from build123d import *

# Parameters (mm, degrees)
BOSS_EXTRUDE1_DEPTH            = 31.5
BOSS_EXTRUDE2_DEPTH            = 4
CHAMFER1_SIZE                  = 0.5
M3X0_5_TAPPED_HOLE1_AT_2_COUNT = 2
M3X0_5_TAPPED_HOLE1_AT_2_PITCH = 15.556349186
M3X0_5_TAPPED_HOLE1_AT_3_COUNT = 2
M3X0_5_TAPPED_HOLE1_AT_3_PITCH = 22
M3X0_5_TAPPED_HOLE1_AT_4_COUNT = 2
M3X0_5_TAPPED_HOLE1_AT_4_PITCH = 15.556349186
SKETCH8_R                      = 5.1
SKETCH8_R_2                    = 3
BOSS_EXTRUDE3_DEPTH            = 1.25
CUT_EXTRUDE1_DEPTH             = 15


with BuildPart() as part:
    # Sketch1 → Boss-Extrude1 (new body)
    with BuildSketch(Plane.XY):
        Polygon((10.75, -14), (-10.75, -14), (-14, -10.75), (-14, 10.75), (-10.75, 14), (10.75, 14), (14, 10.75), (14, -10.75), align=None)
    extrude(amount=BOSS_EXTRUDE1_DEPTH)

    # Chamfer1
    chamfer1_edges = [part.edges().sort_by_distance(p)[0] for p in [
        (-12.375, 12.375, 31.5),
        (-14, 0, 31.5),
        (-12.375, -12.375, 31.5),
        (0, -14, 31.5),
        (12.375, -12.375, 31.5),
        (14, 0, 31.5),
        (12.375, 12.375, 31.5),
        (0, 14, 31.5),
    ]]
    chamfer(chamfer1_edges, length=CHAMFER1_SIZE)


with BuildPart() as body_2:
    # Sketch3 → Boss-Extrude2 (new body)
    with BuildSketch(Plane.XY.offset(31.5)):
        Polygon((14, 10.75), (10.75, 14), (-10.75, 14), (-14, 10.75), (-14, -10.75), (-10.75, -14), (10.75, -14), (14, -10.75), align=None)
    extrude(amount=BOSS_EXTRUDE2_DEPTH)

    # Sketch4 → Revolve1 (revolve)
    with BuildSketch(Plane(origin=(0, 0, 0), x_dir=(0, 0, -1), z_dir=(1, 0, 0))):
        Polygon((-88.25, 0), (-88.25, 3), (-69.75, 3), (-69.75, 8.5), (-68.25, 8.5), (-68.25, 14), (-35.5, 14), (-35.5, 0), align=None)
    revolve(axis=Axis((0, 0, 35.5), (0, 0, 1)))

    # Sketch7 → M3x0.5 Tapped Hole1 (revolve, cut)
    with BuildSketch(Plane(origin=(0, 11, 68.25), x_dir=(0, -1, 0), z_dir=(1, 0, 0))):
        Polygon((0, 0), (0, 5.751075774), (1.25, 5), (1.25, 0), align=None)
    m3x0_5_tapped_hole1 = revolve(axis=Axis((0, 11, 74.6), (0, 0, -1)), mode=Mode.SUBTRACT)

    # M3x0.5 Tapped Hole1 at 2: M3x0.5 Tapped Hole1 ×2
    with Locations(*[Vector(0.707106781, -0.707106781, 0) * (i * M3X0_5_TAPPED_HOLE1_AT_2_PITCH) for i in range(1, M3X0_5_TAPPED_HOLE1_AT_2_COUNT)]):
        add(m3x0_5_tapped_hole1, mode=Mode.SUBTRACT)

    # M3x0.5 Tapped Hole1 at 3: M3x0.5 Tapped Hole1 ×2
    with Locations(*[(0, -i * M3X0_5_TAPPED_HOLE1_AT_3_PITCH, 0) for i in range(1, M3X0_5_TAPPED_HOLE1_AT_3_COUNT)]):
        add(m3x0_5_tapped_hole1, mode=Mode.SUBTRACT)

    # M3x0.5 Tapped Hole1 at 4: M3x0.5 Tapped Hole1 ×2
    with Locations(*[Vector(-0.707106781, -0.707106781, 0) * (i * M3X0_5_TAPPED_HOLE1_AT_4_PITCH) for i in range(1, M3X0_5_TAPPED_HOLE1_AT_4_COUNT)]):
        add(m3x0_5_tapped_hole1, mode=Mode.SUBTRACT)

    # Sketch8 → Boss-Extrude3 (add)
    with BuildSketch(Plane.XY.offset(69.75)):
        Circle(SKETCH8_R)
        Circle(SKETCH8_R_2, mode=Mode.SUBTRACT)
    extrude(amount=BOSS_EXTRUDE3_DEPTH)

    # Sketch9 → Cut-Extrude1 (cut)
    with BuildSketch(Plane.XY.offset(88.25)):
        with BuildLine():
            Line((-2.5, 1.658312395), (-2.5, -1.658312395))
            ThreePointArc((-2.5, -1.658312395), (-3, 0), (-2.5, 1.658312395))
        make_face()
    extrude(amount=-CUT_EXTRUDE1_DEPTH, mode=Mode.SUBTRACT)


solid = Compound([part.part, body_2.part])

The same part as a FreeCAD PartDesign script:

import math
import FreeCAD as App
import Part
import Sketcher
Q = App.Units.Quantity


def edges_at(feature, points):
    """Names of the edges that pass closest to the given points."""
    edges = feature.Shape.Edges
    near = lambda p: min(range(len(edges)), key=lambda i: edges[i].distToShape(Part.Vertex(*p))[0])
    return sorted({f"Edge{near(p) + 1}" for p in points})

doc = App.newDocument("Part")
body = doc.addObject("PartDesign::Body", "Body")

sketch1 = doc.addObject("Sketcher::SketchObject", "Sketch")
body.addObject(sketch1)
sketch1.AttachmentSupport = (doc.XY_Plane, [""])
sketch1.MapMode = "FlatFace"
sketch1.addGeometry(Part.LineSegment(App.Vector(-10.8, -14, 0), App.Vector(10.8, -14, 0)), False)
sketch1.addGeometry(Part.LineSegment(App.Vector(10.8, -14, 0), App.Vector(14, -10.8, 0)), False)
sketch1.addGeometry(Part.LineSegment(App.Vector(14, -10.8, 0), App.Vector(14, 10.8, 0)), False)
sketch1.addGeometry(Part.LineSegment(App.Vector(14, 10.8, 0), App.Vector(10.8, 14, 0)), False)
sketch1.addGeometry(Part.LineSegment(App.Vector(10.8, 14, 0), App.Vector(-10.8, 14, 0)), False)
sketch1.addGeometry(Part.LineSegment(App.Vector(-10.8, 14, 0), App.Vector(-14, 10.8, 0)), False)
sketch1.addGeometry(Part.LineSegment(App.Vector(-14, 10.8, 0), App.Vector(-14, -10.8, 0)), False)
sketch1.addGeometry(Part.LineSegment(App.Vector(-14, -10.8, 0), App.Vector(-10.8, -14, 0)), False)
sketch1.addConstraint(Sketcher.Constraint("Coincident", 0, 2, 1, 1))
sketch1.addConstraint(Sketcher.Constraint("Coincident", 1, 2, 2, 1))
sketch1.addConstraint(Sketcher.Constraint("Coincident", 2, 2, 3, 1))
sketch1.addConstraint(Sketcher.Constraint("Coincident", 3, 2, 4, 1))
sketch1.addConstraint(Sketcher.Constraint("Coincident", 4, 2, 5, 1))
sketch1.addConstraint(Sketcher.Constraint("Coincident", 5, 2, 6, 1))
sketch1.addConstraint(Sketcher.Constraint("Coincident", 6, 2, 7, 1))
sketch1.addConstraint(Sketcher.Constraint("Coincident", 7, 2, 0, 1))
sketch1.addConstraint(Sketcher.Constraint("Horizontal", 0))
sketch1.addConstraint(Sketcher.Constraint("Vertical", 2))
sketch1.addConstraint(Sketcher.Constraint("Horizontal", 4))
sketch1.addConstraint(Sketcher.Constraint("Vertical", 6))
sketch1.addConstraint(Sketcher.Constraint("Symmetric", 0, 2, 4, 2, -1, 1))
sketch1.addConstraint(Sketcher.Constraint("Symmetric", 1, 2, 5, 2, -1, 1))
sketch1.addConstraint(Sketcher.Constraint("Perpendicular", 1, 3))
sketch1.addConstraint(Sketcher.Constraint("Perpendicular", 5, 7))
sketch1.addConstraint(Sketcher.Constraint("Horizontal", 2, 2, 5, 2))
sketch1.addConstraint(Sketcher.Constraint("Horizontal", 1, 2, 6, 2))
sketch1.addConstraint(Sketcher.Constraint("Vertical", 0, 2, 3, 2))
sketch1.addConstraint(Sketcher.Constraint("Equal", 4, 2))
sketch1.addConstraint(Sketcher.Constraint("DistanceX", 0, 1, 0, 2, Q("21.5 mm")))
sketch1.addConstraint(Sketcher.Constraint("DistanceY", 0, 2, -1, 1, Q("14 mm")))
pad1 = doc.addObject("PartDesign::Pad", "Pad")
body.addObject(pad1)
pad1.Profile = sketch1
pad1.Length = 31.5
doc.recompute()

chamfer = doc.addObject("PartDesign::Chamfer", "Chamfer")
body.addObject(chamfer)
chamfer.Base = (pad1, edges_at(pad1, [
    (-12.375, 12.375, 31.5),
    (-14, 0, 31.5),
    (-12.375, -12.375, 31.5),
    (0, -14, 31.5),
    (12.375, -12.375, 31.5),
    (14, 0, 31.5),
    (12.375, 12.375, 31.5),
    (0, 14, 31.5),
]))
chamfer.Size = 0.5
body2 = doc.addObject("PartDesign::Body", "Body001")

sketch2 = doc.addObject("Sketcher::SketchObject", "Sketch001")
body2.addObject(sketch2)
sketch2.AttachmentSupport = (doc.getObject("XY_Plane001"), [""])
sketch2.MapMode = "FlatFace"
sketch2.AttachmentOffset = App.Placement(App.Vector(0, 0, 31.5), App.Rotation())
sketch2.addGeometry(Part.LineSegment(App.Vector(14, 10.8, 0), App.Vector(10.8, 14, 0)), False)
sketch2.addGeometry(Part.LineSegment(App.Vector(10.8, 14, 0), App.Vector(-10.8, 14, 0)), False)
sketch2.addGeometry(Part.LineSegment(App.Vector(-10.8, 14, 0), App.Vector(-14, 10.8, 0)), False)
sketch2.addGeometry(Part.LineSegment(App.Vector(-14, 10.8, 0), App.Vector(-14, -10.8, 0)), False)
sketch2.addGeometry(Part.LineSegment(App.Vector(-14, -10.8, 0), App.Vector(-10.8, -14, 0)), False)
sketch2.addGeometry(Part.LineSegment(App.Vector(-10.8, -14, 0), App.Vector(10.8, -14, 0)), False)
sketch2.addGeometry(Part.LineSegment(App.Vector(10.8, -14, 0), App.Vector(14, -10.8, 0)), False)
sketch2.addGeometry(Part.LineSegment(App.Vector(14, -10.8, 0), App.Vector(14, 10.8, 0)), False)
sketch2.addConstraint(Sketcher.Constraint("Coincident", 0, 2, 1, 1))
sketch2.addConstraint(Sketcher.Constraint("Coincident", 1, 2, 2, 1))
sketch2.addConstraint(Sketcher.Constraint("Coincident", 2, 2, 3, 1))
sketch2.addConstraint(Sketcher.Constraint("Coincident", 3, 2, 4, 1))
sketch2.addConstraint(Sketcher.Constraint("Coincident", 4, 2, 5, 1))
sketch2.addConstraint(Sketcher.Constraint("Coincident", 5, 2, 6, 1))
sketch2.addConstraint(Sketcher.Constraint("Coincident", 6, 2, 7, 1))
sketch2.addConstraint(Sketcher.Constraint("Coincident", 7, 2, 0, 1))
sketch2.addConstraint(Sketcher.Constraint("Horizontal", 1))
sketch2.addConstraint(Sketcher.Constraint("Vertical", 3))
sketch2.addConstraint(Sketcher.Constraint("Horizontal", 5))
sketch2.addConstraint(Sketcher.Constraint("Vertical", 7))
sketch2.addConstraint(Sketcher.Constraint("Symmetric", 0, 2, 4, 2, -1, 1))
sketch2.addConstraint(Sketcher.Constraint("Symmetric", 2, 2, 6, 2, -1, 1))
sketch2.addConstraint(Sketcher.Constraint("Perpendicular", 0, 2))
sketch2.addConstraint(Sketcher.Constraint("Perpendicular", 2, 4))
sketch2.addConstraint(Sketcher.Constraint("Perpendicular", 4, 6))
sketch2.addConstraint(Sketcher.Constraint("Horizontal", 3, 2, 6, 2))
sketch2.addConstraint(Sketcher.Constraint("Vertical", 1, 2, 4, 2))
sketch2.addConstraint(Sketcher.Constraint("Equal", 5, 3))
sketch2.addConstraint(Sketcher.Constraint("DistanceX", 1, 2, 1, 1, Q("21.5 mm")))
sketch2.addConstraint(Sketcher.Constraint("DistanceY", -1, 1, 0, 2, Q("14 mm")))
pad2 = doc.addObject("PartDesign::Pad", "Pad001")
body2.addObject(pad2)
pad2.Profile = sketch2
pad2.Length = 4

sketch3 = doc.addObject("Sketcher::SketchObject", "Sketch002")
body2.addObject(sketch3)
sketch3.AttachmentSupport = (doc.getObject("YZ_Plane001"), [""])
sketch3.MapMode = "FlatFace"
sketch3.addGeometry(Part.LineSegment(App.Vector(3, 88.2, 0), App.Vector(0, 88.2, 0)), False)
sketch3.addGeometry(Part.LineSegment(App.Vector(0, 88.2, 0), App.Vector(0, 35.5, 0)), False)
sketch3.addGeometry(Part.LineSegment(App.Vector(0, 35.5, 0), App.Vector(14, 35.5, 0)), False)
sketch3.addGeometry(Part.LineSegment(App.Vector(14, 35.5, 0), App.Vector(14, 68.2, 0)), False)
sketch3.addGeometry(Part.LineSegment(App.Vector(14, 68.2, 0), App.Vector(8.5, 68.2, 0)), False)
sketch3.addGeometry(Part.LineSegment(App.Vector(8.5, 68.2, 0), App.Vector(8.5, 69.8, 0)), False)
sketch3.addGeometry(Part.LineSegment(App.Vector(8.5, 69.8, 0), App.Vector(3, 69.8, 0)), False)
sketch3.addGeometry(Part.LineSegment(App.Vector(3, 69.8, 0), App.Vector(3, 88.2, 0)), False)
sketch3.addConstraint(Sketcher.Constraint("Coincident", 0, 2, 1, 1))
sketch3.addConstraint(Sketcher.Constraint("Coincident", 1, 2, 2, 1))
sketch3.addConstraint(Sketcher.Constraint("Coincident", 2, 2, 3, 1))
sketch3.addConstraint(Sketcher.Constraint("Coincident", 3, 2, 4, 1))
sketch3.addConstraint(Sketcher.Constraint("Coincident", 4, 2, 5, 1))
sketch3.addConstraint(Sketcher.Constraint("Coincident", 5, 2, 6, 1))
sketch3.addConstraint(Sketcher.Constraint("Coincident", 6, 2, 7, 1))
sketch3.addConstraint(Sketcher.Constraint("Coincident", 7, 2, 0, 1))
sketch3.addConstraint(Sketcher.Constraint("Horizontal", 0))
sketch3.addConstraint(Sketcher.Constraint("Vertical", 1))
sketch3.addConstraint(Sketcher.Constraint("Horizontal", 2))
sketch3.addConstraint(Sketcher.Constraint("Vertical", 3))
sketch3.addConstraint(Sketcher.Constraint("Horizontal", 4))
sketch3.addConstraint(Sketcher.Constraint("Vertical", 5))
sketch3.addConstraint(Sketcher.Constraint("Horizontal", 6))
sketch3.addConstraint(Sketcher.Constraint("Vertical", 7))
sketch3.addConstraint(Sketcher.Constraint("PointOnObject", 0, 2, -2))
sketch3.addConstraint(Sketcher.Constraint("Equal", 4, 6))
sketch3.addConstraint(Sketcher.Constraint("DistanceX", 0, 2, 0, 1, Q("3 mm")))
sketch3.addConstraint(Sketcher.Constraint("DistanceX", 2, 1, 2, 2, Q("14 mm")))
sketch3.addConstraint(Sketcher.Constraint("DistanceY", 5, 1, 5, 2, Q("1.5 mm")))
sketch3.addConstraint(Sketcher.Constraint("DistanceY", 7, 1, 7, 2, Q("18.5 mm")))
sketch3.addConstraint(Sketcher.Constraint("DistanceY", 1, 2, 1, 1, Q("52.75 mm")))
sketch3.addConstraint(Sketcher.Constraint("DistanceY", -1, 1, 1, 2, Q("35.5 mm")))
revolution = doc.addObject("PartDesign::Revolution", "Revolution")
body2.addObject(revolution)
revolution.Profile = sketch3
revolution.ReferenceAxis = (sketch3, ["V_Axis"])
revolution.Angle = 360

sketch4 = doc.addObject("Sketcher::SketchObject", "Sketch003")
body2.addObject(sketch4)
sketch4.AttachmentSupport = (doc.getObject("YZ_Plane001"), [""])
sketch4.MapMode = "FlatFace"
sketch4.addGeometry(Part.LineSegment(App.Vector(11, 62.5, 0), App.Vector(11, 68.2, 0)), False)
sketch4.addGeometry(Part.LineSegment(App.Vector(11, 68.2, 0), App.Vector(9.8, 68.2, 0)), False)
sketch4.addGeometry(Part.LineSegment(App.Vector(9.8, 68.2, 0), App.Vector(9.8, 63.2, 0)), False)
sketch4.addGeometry(Part.LineSegment(App.Vector(9.8, 63.2, 0), App.Vector(11, 62.5, 0)), False)
sketch4.addGeometry(Part.LineSegment(App.Vector(11, 68.2, 0), App.Vector(11, 62.5, 0)), True)
sketch4.addConstraint(Sketcher.Constraint("Coincident", 0, 2, 1, 1))
sketch4.addConstraint(Sketcher.Constraint("Coincident", 1, 2, 2, 1))
sketch4.addConstraint(Sketcher.Constraint("Coincident", 2, 2, 3, 1))
sketch4.addConstraint(Sketcher.Constraint("Coincident", 3, 2, 0, 1))
sketch4.addConstraint(Sketcher.Constraint("Vertical", 0))
sketch4.addConstraint(Sketcher.Constraint("Horizontal", 1))
sketch4.addConstraint(Sketcher.Constraint("Vertical", 2))
sketch4.addConstraint(Sketcher.Constraint("Vertical", 4))
sketch4.addConstraint(Sketcher.Constraint("Coincident", 4, 1, 0, 2))
sketch4.addConstraint(Sketcher.Constraint("Equal", 0, 4))
sketch4.addConstraint(Sketcher.Constraint("DistanceY", 2, 2, 2, 1, Q("5 mm")))
sketch4.addConstraint(Sketcher.Constraint("Angle", 3, Q("-31 deg")))
sketch4.addConstraint(Sketcher.Constraint("DistanceX", -1, 1, 0, 2, Q("11 mm")))
sketch4.addConstraint(Sketcher.Constraint("DistanceX", 1, 2, 1, 1, Q("1.25 mm")))
sketch4.addConstraint(Sketcher.Constraint("DistanceY", -1, 1, 0, 2, Q("68.25 mm")))
groove = doc.addObject("PartDesign::Groove", "Groove")
body2.addObject(groove)
groove.Profile = sketch4
groove.ReferenceAxis = (sketch4, ["Axis0"])
groove.Angle = 360
doc.recompute()

datumline = doc.addObject("PartDesign::Line", "DatumLine")
body2.addObject(datumline)
datumline.Placement = App.Placement(App.Vector(0, 0, 0), App.Rotation(App.Vector(0, 0, 1), App.Vector(0.707106781, -0.707106781, 0)))
linearpattern = doc.addObject("PartDesign::LinearPattern", "LinearPattern")
body2.addObject(linearpattern)
linearpattern.Originals = [groove]
linearpattern.Direction = (datumline, [""])
linearpattern.Mode = "offset"
linearpattern.Offset = 15.556349
linearpattern.Occurrences = 2
body2.Tip = linearpattern
doc.recompute()

linearpattern2 = doc.addObject("PartDesign::LinearPattern", "LinearPattern001")
body2.addObject(linearpattern2)
linearpattern2.Originals = [groove]
linearpattern2.Direction = (doc.getObject("Y_Axis001"), [""])
linearpattern2.Mode = "offset"
linearpattern2.Offset = 22
linearpattern2.Occurrences = 2
linearpattern2.Reversed = True
body2.Tip = linearpattern2
doc.recompute()

datumline2 = doc.addObject("PartDesign::Line", "DatumLine001")
body2.addObject(datumline2)
datumline2.Placement = App.Placement(App.Vector(0, 0, 0), App.Rotation(App.Vector(0, 0, 1), App.Vector(-0.707106781, -0.707106781, 0)))
linearpattern3 = doc.addObject("PartDesign::LinearPattern", "LinearPattern002")
body2.addObject(linearpattern3)
linearpattern3.Originals = [groove]
linearpattern3.Direction = (datumline2, [""])
linearpattern3.Mode = "offset"
linearpattern3.Offset = 15.556349
linearpattern3.Occurrences = 2
body2.Tip = linearpattern3

sketch5 = doc.addObject("Sketcher::SketchObject", "Sketch004")
body2.addObject(sketch5)
sketch5.AttachmentSupport = (doc.getObject("XY_Plane001"), [""])
sketch5.MapMode = "FlatFace"
sketch5.AttachmentOffset = App.Placement(App.Vector(0, 0, 69.75), App.Rotation())
sketch5.addGeometry(Part.Circle(App.Vector(0, 0, 0), App.Vector(0, 0, 1), 5.1), False)
sketch5.addGeometry(Part.Circle(App.Vector(0, 0, 0), App.Vector(0, 0, 1), 3), False)
sketch5.addConstraint(Sketcher.Constraint("Coincident", 0, 3, -1, 1))
sketch5.addConstraint(Sketcher.Constraint("Coincident", 1, 3, -1, 1))
sketch5.addConstraint(Sketcher.Constraint("Diameter", 1, Q("6 mm")))
sketch5.addConstraint(Sketcher.Constraint("Diameter", 0, Q("10.2 mm")))
pad3 = doc.addObject("PartDesign::Pad", "Pad002")
body2.addObject(pad3)
pad3.Profile = sketch5
pad3.Length = 1.25

sketch6 = doc.addObject("Sketcher::SketchObject", "Sketch005")
body2.addObject(sketch6)
sketch6.AttachmentSupport = (doc.getObject("XY_Plane001"), [""])
sketch6.MapMode = "FlatFace"
sketch6.AttachmentOffset = App.Placement(App.Vector(0, 0, 88.25), App.Rotation())
sketch6.addGeometry(Part.LineSegment(App.Vector(-2.5, -1.7, 0), App.Vector(-2.5, 1.7, 0)), False)
sketch6.addGeometry(Part.ArcOfCircle(Part.Circle(App.Vector(0, 0, 0), App.Vector(0, 0, 1), 3), math.radians(146), math.radians(214)), False)
sketch6.addConstraint(Sketcher.Constraint("Coincident", 0, 1, 1, 2))
sketch6.addConstraint(Sketcher.Constraint("Coincident", 1, 1, 0, 2))
sketch6.addConstraint(Sketcher.Constraint("Vertical", 0))
sketch6.addConstraint(Sketcher.Constraint("Coincident", 1, 3, -1, 1))
sketch6.addConstraint(Sketcher.Constraint("Radius", 1, Q("3 mm")))
sketch6.addConstraint(Sketcher.Constraint("DistanceX", 0, 1, -1, 1, Q("2.5 mm")))
pocket1 = doc.addObject("PartDesign::Pocket", "Pocket")
body2.addObject(pocket1)
pocket1.Profile = sketch6
pocket1.Length = 15

doc.recompute()
